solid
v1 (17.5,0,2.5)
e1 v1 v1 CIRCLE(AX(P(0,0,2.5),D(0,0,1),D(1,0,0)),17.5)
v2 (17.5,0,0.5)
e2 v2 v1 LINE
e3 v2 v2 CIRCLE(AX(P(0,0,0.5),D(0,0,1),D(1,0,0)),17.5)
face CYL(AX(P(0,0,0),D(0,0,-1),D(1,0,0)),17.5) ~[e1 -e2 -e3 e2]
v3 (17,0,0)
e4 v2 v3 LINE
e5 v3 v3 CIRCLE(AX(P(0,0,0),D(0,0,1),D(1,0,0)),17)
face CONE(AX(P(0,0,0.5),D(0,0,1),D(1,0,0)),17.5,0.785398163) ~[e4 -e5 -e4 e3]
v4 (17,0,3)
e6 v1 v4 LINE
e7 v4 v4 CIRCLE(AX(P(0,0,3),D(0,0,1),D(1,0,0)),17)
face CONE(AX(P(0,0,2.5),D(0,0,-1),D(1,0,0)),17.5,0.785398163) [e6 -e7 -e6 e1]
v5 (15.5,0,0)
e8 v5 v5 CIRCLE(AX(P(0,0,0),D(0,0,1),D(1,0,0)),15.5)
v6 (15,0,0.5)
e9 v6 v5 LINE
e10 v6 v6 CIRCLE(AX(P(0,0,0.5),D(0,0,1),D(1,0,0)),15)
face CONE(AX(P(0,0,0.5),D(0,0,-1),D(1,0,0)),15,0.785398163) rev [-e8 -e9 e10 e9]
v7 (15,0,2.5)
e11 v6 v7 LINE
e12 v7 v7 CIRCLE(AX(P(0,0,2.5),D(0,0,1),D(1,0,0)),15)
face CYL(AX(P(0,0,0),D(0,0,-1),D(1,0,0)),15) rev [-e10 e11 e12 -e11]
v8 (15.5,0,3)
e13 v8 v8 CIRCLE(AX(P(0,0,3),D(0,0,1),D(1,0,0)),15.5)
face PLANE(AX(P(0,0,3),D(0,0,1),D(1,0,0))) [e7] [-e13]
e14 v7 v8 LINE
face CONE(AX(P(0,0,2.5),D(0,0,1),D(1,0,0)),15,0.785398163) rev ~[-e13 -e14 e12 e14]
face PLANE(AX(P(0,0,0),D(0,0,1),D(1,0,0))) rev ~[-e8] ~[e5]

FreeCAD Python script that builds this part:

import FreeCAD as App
import Part
import Sketcher

V = App.Vector
Q = App.Units.Quantity


def edges_at(feature, points):
    """Names of the edges that pass closest to the given points."""
    edges = feature.Shape.Edges
    near = lambda p: min(range(len(edges)), key=lambda i: edges[i].distToShape(Part.Vertex(*p))[0])
    return sorted({f"Edge{near(p) + 1}" for p in points})

doc = App.newDocument("Part")
body = doc.addObject("PartDesign::Body", "Body")

sketch1 = body.newObject("Sketcher::SketchObject", "Sketch")
sketch1.AttachmentSupport = (doc.getObject("XY_Plane"), [""])
sketch1.MapMode = "FlatFace"
sketch1.addGeometry([
    Part.Circle(V(0, 0, 0), V(0, 0, 1), 18),
    Part.Circle(V(0, 0, 0), V(0, 0, 1), 15),
], False)
sketch1.addConstraint([
    Sketcher.Constraint("Coincident", 0, 3, -1, 1),
    Sketcher.Constraint("Coincident", 1, 3, -1, 1),
    Sketcher.Constraint("Diameter", 0, Q("35 mm")),
    Sketcher.Constraint("Diameter", 1, Q("30 mm")),
])
pad1 = body.newObject("PartDesign::Pad", "Pad")
pad1.Profile = sketch1
pad1.Length = 3
doc.recompute()

chamfer = body.newObject("PartDesign::Chamfer", "Chamfer")
chamfer.Base = (pad1, edges_at(pad1, [
    (-15, 0, 3),
    (-15, 0, 0),
    (-17.5, 0, 3),
    (-17.5, 0, 0),
]))
chamfer.Size = 0.5

doc.recompute()
